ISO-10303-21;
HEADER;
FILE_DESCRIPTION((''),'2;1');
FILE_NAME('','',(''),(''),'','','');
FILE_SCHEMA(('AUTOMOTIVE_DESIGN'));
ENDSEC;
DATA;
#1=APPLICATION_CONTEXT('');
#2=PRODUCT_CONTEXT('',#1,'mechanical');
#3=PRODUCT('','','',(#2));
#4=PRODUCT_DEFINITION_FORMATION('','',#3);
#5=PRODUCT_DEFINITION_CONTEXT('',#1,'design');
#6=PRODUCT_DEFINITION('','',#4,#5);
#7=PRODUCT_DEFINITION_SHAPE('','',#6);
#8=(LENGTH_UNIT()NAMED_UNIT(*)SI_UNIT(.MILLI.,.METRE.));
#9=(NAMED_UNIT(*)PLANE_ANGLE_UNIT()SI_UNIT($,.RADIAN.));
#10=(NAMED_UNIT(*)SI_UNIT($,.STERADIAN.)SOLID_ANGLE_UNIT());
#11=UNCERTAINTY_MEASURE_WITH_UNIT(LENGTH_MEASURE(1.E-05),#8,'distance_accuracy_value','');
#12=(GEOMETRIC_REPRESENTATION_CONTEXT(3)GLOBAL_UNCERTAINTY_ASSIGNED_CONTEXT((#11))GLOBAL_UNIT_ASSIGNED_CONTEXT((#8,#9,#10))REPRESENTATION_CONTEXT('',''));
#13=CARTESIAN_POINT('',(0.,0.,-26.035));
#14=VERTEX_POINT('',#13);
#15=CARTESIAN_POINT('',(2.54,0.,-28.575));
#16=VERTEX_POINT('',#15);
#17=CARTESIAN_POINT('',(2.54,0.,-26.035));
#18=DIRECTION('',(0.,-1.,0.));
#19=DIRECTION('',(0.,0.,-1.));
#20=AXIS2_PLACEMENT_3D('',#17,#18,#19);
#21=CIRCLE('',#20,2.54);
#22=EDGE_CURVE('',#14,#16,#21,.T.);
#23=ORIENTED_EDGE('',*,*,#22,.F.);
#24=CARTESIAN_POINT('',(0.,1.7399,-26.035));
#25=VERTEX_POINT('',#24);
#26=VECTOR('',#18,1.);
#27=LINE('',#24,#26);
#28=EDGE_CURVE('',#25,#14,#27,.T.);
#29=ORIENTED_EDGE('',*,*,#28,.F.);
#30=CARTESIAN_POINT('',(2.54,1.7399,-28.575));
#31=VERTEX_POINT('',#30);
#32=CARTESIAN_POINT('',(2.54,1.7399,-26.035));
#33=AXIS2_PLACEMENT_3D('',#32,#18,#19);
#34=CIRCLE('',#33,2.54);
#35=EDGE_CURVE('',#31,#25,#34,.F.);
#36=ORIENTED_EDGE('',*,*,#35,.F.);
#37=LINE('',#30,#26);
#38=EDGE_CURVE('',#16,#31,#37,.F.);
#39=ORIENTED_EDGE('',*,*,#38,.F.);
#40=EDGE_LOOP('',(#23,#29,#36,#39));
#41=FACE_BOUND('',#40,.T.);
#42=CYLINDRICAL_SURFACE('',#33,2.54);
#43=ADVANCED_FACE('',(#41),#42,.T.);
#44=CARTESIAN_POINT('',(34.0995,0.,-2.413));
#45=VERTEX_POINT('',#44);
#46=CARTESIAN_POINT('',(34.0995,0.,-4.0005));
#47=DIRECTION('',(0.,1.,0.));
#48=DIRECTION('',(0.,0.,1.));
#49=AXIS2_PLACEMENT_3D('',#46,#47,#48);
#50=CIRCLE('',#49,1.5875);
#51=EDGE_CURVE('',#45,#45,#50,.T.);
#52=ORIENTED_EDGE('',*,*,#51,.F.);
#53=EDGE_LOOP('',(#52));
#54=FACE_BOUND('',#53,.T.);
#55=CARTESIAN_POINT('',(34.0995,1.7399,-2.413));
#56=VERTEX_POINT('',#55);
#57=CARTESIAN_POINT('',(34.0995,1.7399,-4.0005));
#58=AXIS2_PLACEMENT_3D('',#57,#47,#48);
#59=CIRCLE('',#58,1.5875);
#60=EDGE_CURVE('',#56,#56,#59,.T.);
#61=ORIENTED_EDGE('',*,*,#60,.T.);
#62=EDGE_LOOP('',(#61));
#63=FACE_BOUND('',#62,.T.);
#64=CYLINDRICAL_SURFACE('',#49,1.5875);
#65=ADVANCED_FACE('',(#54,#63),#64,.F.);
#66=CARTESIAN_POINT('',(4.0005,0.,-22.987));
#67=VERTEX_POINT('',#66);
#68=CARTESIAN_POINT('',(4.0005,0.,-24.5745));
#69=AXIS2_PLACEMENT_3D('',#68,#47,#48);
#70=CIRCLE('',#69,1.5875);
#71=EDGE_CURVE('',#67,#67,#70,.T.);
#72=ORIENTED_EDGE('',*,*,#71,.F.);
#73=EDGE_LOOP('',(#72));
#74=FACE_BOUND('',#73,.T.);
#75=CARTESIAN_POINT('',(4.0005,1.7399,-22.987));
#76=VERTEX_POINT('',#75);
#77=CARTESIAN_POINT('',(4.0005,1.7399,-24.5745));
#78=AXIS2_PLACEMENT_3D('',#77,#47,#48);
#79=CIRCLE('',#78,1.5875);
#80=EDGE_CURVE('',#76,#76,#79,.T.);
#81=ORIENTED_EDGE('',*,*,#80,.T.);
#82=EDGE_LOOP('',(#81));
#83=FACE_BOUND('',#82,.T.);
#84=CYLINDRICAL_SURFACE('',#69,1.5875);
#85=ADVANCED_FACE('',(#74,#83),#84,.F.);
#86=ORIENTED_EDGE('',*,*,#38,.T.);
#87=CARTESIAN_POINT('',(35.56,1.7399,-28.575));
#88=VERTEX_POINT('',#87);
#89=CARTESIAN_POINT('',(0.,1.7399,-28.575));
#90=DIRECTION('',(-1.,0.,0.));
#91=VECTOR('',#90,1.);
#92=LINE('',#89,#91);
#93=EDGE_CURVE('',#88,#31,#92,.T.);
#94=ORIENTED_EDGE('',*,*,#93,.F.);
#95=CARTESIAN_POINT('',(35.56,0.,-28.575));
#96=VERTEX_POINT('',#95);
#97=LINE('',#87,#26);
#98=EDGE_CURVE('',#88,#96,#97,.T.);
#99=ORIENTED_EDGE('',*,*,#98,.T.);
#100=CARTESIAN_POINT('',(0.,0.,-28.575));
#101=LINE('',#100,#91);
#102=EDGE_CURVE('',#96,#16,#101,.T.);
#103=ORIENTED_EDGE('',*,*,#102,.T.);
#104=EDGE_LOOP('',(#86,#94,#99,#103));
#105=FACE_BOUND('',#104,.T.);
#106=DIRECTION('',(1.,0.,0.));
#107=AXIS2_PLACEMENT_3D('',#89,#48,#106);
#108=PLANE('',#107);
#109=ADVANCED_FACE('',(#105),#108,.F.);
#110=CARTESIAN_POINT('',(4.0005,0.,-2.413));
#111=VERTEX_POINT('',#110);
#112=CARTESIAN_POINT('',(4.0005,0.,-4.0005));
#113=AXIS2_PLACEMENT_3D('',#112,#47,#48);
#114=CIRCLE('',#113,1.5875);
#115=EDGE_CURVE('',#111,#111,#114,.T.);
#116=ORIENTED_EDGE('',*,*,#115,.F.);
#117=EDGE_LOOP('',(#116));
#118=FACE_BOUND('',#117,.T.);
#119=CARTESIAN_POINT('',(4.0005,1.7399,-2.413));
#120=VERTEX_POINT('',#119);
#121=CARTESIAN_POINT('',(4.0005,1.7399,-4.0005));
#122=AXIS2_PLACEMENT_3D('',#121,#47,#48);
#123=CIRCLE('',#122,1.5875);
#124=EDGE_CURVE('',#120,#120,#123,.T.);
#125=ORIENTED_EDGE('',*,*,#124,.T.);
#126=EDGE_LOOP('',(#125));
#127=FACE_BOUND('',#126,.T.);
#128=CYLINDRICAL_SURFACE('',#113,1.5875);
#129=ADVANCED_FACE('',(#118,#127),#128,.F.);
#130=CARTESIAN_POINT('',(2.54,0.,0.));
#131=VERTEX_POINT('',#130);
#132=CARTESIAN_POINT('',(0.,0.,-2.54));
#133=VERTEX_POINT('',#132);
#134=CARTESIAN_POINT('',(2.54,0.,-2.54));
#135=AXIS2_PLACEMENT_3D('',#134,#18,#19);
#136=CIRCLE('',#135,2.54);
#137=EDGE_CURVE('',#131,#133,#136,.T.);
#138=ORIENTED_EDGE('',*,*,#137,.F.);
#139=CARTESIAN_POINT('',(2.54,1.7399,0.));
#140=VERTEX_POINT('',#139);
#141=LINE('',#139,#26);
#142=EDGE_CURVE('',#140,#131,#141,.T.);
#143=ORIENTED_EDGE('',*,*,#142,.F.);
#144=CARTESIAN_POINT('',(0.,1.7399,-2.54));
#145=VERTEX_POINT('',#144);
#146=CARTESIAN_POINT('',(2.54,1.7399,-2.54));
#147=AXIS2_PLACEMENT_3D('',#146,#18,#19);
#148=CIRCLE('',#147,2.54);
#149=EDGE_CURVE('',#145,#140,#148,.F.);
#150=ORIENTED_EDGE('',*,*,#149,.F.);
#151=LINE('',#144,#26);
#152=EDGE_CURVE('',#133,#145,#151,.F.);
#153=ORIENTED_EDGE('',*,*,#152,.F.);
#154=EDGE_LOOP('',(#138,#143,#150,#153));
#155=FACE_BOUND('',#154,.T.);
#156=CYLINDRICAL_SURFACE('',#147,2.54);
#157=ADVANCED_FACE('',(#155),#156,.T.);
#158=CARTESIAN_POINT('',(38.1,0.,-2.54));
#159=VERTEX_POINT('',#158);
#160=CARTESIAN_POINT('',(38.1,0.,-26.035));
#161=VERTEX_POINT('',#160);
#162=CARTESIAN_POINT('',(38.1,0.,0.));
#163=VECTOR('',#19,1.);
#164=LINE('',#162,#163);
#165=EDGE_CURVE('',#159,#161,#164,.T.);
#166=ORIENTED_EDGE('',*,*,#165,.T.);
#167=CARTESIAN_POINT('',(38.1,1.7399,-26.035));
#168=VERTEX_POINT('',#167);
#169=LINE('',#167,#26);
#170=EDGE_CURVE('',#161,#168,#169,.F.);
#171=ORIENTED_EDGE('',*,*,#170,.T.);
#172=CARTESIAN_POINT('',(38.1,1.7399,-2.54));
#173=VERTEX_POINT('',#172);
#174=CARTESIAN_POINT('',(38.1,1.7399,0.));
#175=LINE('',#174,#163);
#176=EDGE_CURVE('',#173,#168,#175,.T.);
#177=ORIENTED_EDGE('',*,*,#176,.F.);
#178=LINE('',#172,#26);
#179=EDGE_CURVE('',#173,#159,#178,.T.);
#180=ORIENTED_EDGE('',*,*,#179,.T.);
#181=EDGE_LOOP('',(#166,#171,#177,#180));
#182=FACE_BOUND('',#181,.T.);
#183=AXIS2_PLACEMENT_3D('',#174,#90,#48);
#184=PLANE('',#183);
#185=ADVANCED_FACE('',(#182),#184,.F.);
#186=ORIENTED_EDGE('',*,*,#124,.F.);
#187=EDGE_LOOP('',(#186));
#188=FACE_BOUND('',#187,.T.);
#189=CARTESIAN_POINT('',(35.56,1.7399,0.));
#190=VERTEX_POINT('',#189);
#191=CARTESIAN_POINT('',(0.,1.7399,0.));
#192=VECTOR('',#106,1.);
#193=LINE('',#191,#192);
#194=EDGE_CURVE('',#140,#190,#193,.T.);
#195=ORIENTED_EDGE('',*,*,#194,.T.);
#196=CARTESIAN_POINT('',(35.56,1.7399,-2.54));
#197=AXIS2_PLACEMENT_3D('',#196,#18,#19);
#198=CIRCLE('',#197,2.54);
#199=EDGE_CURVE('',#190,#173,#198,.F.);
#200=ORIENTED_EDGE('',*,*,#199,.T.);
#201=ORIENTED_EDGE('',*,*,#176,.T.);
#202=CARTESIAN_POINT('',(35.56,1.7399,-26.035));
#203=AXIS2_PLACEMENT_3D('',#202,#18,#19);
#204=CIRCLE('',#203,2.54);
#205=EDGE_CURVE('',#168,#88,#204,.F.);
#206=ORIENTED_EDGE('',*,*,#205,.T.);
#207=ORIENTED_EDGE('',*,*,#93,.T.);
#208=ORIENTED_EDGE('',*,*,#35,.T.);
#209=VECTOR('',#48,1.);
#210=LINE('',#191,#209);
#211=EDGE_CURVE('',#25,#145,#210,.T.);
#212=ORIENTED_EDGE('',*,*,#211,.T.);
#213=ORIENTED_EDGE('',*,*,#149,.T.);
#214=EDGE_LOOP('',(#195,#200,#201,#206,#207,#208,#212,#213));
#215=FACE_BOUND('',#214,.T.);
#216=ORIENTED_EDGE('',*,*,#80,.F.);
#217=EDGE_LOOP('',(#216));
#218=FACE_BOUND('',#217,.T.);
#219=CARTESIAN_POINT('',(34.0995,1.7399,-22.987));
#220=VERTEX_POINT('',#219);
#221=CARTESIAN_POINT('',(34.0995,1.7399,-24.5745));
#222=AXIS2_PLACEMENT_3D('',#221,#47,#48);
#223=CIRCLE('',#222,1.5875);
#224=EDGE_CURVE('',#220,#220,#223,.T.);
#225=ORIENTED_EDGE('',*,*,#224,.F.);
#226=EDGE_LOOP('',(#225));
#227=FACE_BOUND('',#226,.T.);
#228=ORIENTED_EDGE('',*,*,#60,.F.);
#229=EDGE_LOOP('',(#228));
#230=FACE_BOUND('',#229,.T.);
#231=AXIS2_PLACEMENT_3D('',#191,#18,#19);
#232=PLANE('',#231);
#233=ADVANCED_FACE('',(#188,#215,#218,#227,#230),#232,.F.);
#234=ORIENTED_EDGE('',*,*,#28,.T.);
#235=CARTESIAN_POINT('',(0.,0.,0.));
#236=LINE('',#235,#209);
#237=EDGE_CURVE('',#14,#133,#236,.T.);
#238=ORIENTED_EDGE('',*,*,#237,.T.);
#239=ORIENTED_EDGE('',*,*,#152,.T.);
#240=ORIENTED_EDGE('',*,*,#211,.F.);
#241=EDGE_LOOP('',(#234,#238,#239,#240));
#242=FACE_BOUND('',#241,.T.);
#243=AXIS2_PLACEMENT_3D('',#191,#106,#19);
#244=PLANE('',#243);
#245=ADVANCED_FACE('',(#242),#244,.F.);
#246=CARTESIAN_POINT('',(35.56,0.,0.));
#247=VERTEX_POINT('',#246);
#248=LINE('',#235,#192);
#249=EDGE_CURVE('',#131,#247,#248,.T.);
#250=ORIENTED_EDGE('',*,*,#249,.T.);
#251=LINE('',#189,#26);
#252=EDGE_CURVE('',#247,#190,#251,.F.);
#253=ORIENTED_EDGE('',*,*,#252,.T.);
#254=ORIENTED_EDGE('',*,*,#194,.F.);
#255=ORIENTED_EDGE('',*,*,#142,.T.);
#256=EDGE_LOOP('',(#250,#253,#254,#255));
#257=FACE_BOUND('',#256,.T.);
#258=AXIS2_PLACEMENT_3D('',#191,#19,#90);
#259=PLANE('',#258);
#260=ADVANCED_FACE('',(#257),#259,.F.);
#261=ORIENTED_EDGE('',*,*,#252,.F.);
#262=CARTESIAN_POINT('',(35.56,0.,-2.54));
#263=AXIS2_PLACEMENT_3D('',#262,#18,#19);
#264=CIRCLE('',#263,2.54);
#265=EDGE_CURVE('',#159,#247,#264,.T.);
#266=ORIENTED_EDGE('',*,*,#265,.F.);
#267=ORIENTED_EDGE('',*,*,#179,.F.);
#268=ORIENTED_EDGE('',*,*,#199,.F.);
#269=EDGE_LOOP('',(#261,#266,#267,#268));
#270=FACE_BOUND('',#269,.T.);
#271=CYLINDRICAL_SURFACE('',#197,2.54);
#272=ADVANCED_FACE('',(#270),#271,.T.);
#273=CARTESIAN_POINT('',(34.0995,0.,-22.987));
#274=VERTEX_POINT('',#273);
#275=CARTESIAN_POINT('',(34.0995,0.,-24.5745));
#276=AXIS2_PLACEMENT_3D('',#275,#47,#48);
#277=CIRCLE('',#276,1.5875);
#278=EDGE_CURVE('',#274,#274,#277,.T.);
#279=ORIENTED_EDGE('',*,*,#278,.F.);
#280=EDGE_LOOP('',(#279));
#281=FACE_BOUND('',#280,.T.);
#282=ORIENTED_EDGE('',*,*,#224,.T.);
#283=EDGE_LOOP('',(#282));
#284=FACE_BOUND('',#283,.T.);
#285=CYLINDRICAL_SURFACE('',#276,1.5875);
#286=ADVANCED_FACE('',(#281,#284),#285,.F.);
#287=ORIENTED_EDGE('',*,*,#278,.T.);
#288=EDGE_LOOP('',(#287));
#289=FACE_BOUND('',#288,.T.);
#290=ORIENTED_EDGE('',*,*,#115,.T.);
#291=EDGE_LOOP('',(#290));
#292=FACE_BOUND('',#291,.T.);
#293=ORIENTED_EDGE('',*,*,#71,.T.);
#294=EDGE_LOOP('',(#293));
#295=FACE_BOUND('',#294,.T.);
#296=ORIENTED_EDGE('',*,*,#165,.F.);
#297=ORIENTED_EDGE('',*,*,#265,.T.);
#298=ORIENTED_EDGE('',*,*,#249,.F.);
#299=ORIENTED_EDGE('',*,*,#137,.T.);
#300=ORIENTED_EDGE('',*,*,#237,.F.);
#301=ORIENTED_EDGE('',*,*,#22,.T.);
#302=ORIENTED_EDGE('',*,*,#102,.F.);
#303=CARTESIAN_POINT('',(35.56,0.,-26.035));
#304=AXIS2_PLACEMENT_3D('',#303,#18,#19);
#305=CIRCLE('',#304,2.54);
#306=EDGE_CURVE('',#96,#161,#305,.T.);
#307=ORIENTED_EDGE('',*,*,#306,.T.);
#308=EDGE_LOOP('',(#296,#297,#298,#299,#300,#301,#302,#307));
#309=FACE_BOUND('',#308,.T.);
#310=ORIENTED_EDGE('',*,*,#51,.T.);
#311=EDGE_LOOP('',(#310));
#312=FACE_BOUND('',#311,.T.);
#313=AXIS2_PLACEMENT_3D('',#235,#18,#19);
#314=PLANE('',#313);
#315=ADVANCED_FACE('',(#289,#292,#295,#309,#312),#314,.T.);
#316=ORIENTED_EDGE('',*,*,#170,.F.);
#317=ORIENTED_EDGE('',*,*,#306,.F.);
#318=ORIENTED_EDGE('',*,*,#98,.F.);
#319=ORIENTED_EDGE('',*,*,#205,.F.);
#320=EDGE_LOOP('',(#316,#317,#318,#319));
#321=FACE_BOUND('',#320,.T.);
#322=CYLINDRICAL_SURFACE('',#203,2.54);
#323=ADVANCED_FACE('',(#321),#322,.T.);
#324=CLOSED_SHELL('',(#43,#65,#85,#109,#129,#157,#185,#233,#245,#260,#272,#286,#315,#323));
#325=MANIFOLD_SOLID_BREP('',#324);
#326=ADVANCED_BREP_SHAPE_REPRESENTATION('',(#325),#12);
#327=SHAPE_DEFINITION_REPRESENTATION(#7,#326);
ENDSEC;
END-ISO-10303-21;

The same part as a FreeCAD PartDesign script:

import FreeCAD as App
import Part
import Sketcher
from FreeCAD import Vector
Q = App.Units.Quantity


def edges_at(feature, points):
    """Names of the edges that pass closest to the given points."""
    edges = feature.Shape.Edges
    near = lambda p: min(range(len(edges)), key=lambda i: edges[i].distToShape(Part.Vertex(*p))[0])
    return sorted({f"Edge{near(p) + 1}" for p in points})


def add_polygon(sketch, points):
    """Adds a closed chain of lines whose ends are joined by coincident constraints."""
    first, n = sketch.GeometryCount, len(points)
    for a, b in zip(points, points[1:] + points[:1]):
        sketch.addGeometry(Part.LineSegment(App.Vector(*a, 0), App.Vector(*b, 0)), False)
    for i in range(n):
        sketch.addConstraint(Sketcher.Constraint("Coincident", first + i, 2, first + (i + 1) % n, 1))

doc = App.newDocument("Part")
body = doc.addObject("PartDesign::Body", "Body")

# Sketch on XZ plane
sketch1 = body.newObject("Sketcher::SketchObject", "Sketch")
sketch1.AttachmentSupport = (doc.getObject("XZ_Plane"), [""])
sketch1.MapMode = "FlatFace"
add_polygon(sketch1, [(0, -29), (0, 0), (38, 0), (38, -29)])  # lines 0-3
sketch1.addConstraint([
    Sketcher.Constraint("Vertical", 0),
    Sketcher.Constraint("Horizontal", 1),
    Sketcher.Constraint("Vertical", 2),
    Sketcher.Constraint("Horizontal", 3),
    Sketcher.Constraint("Coincident", 0, 2, -1, 1),
    Sketcher.Constraint("DistanceX", 1, 1, 1, 2, Q("1.5 in")),
    Sketcher.Constraint("DistanceY", 0, 1, 0, 2, Q("1.125 in")),
])
pad1 = body.newObject("PartDesign::Pad", "Pad")
pad1.Profile = sketch1
pad1.Length = Q("0.0685 in")
pad1.Reversed = True

# Sketch on XZ plane
sketch2 = body.newObject("Sketcher::SketchObject", "Sketch001")
sketch2.AttachmentSupport = (doc.getObject("XZ_Plane"), [""])
sketch2.MapMode = "FlatFace"
sketch2.AttachmentOffset = App.Placement(Vector(0, 0, -0.0685 * 25.4), App.Rotation())
sketch2.addGeometry([
    Part.Circle(Vector(4, -4, 0), Vector(0, 0, 1), 1.6),
    Part.Circle(Vector(34.1, -4, 0), Vector(0, 0, 1), 1.6),
    Part.Circle(Vector(4, -24.6, 0), Vector(0, 0, 1), 1.6),
    Part.Circle(Vector(34.1, -24.6, 0), Vector(0, 0, 1), 1.6),
], False)
sketch2.addConstraint([
    Sketcher.Constraint("Equal", 0, 1),
    Sketcher.Constraint("Equal", 1, 2),
    Sketcher.Constraint("Equal", 2, 3),
    Sketcher.Constraint("Horizontal", 0, 3, 1, 3),
    Sketcher.Constraint("Horizontal", 2, 3, 3, 3),
    Sketcher.Constraint("Vertical", 0, 3, 2, 3),
    Sketcher.Constraint("Vertical", 1, 3, 3, 3),
    Sketcher.Constraint("Diameter", 0, Q("0.125 in")),
    Sketcher.Constraint("DistanceY", 2, 3, 0, 3, Q("0.81 in")),
    Sketcher.Constraint("DistanceX", 0, 3, 1, 3, Q("1.185 in")),
    Sketcher.Constraint("DistanceX", -1, 1, 0, 3, Q("0.1575 in")),
    Sketcher.Constraint("DistanceY", 0, 3, -1, 1, Q("0.1575 in")),
])
pocket1 = body.newObject("PartDesign::Pocket", "Pocket")
pocket1.Profile = sketch2
pocket1.Length = Q("0.0685 in")
pocket1.Reversed = True
doc.recompute()

fillet = body.newObject("PartDesign::Fillet", "Fillet")
fillet.Base = (pocket1, edges_at(pocket1, [
    (0, 0.87, -28.575),
    (38.1, 0.87, -28.575),
    (38.1, 0.87, 0),
    (0, 0.87, 0),
]))
fillet.Radius = Q("0.1 in")

doc.recompute()
